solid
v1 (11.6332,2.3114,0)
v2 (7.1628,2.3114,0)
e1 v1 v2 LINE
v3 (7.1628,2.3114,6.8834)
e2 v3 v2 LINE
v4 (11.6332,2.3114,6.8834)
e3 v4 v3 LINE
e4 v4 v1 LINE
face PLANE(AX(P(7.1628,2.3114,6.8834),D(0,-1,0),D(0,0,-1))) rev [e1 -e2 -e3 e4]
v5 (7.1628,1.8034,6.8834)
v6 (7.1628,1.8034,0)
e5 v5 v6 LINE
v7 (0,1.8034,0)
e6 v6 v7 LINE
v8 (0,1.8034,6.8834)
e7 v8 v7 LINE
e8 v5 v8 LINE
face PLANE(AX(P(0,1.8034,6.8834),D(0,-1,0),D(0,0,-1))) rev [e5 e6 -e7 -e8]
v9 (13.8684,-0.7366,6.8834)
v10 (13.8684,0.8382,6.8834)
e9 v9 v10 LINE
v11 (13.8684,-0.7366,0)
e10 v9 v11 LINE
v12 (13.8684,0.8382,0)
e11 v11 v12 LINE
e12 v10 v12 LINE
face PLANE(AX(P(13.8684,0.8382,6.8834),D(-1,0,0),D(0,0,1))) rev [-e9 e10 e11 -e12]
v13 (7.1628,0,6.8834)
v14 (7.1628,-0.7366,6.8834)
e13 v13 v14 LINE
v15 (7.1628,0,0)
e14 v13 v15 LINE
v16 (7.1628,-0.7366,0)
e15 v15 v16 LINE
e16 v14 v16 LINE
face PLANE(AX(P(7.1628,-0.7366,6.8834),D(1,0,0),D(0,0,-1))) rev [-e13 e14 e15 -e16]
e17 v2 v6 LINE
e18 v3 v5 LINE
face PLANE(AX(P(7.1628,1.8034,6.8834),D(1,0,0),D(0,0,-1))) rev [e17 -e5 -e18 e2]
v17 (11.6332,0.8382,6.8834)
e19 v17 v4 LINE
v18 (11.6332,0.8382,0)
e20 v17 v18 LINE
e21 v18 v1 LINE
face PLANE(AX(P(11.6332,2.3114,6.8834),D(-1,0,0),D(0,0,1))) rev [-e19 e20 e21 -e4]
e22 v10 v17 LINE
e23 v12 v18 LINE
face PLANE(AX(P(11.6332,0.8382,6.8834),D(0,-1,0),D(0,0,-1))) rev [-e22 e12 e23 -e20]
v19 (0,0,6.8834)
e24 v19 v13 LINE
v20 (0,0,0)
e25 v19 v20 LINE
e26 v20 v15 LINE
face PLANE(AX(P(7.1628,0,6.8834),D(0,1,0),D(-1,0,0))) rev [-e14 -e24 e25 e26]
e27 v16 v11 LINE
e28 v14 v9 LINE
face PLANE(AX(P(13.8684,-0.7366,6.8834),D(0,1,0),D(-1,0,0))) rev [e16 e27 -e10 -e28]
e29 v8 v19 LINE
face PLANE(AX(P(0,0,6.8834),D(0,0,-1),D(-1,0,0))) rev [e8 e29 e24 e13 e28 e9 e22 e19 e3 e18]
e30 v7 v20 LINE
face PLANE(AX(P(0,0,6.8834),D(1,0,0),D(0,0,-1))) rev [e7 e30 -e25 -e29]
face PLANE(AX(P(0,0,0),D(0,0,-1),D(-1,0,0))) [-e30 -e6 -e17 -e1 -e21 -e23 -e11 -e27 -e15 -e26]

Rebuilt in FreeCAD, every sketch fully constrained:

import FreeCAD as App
import Part
import Sketcher

V = App.Vector
Q = App.Units.Quantity

doc = App.newDocument("Part")
body = doc.addObject("PartDesign::Body", "Body")

# Sketch on XY plane
sketch1 = body.newObject("Sketcher::SketchObject", "Sketch")
sketch1.AttachmentSupport = (doc.getObject("XY_Plane"), [""])
sketch1.MapMode = "FlatFace"
sketch1.addGeometry([
    Part.LineSegment(V(0, 1.8, 0), V(0, 0, 0)),  # 0
    Part.LineSegment(V(0, 0, 0), V(7.2, 0, 0)),  # 1
    Part.LineSegment(V(7.2, 0, 0), V(7.2, -0.7, 0)),  # 2
    Part.LineSegment(V(7.2, -0.7, 0), V(13.9, -0.7, 0)),  # 3
    Part.LineSegment(V(13.9, -0.7, 0), V(13.9, 0.8, 0)),  # 4
    Part.LineSegment(V(13.9, 0.8, 0), V(11.6, 0.8, 0)),  # 5
    Part.LineSegment(V(11.6, 0.8, 0), V(11.6, 2.3, 0)),  # 6
    Part.LineSegment(V(11.6, 2.3, 0), V(7.2, 2.3, 0)),  # 7
    Part.LineSegment(V(7.2, 2.3, 0), V(7.2, 1.8, 0)),  # 8
    Part.LineSegment(V(7.2, 1.8, 0), V(0, 1.8, 0)),  # 9
], False)
sketch1.addConstraint([
    Sketcher.Constraint("Coincident", 0, 2, 1, 1),
    Sketcher.Constraint("Coincident", 1, 2, 2, 1),
    Sketcher.Constraint("Coincident", 2, 2, 3, 1),
    Sketcher.Constraint("Coincident", 3, 2, 4, 1),
    Sketcher.Constraint("Coincident", 4, 2, 5, 1),
    Sketcher.Constraint("Coincident", 5, 2, 6, 1),
    Sketcher.Constraint("Coincident", 6, 2, 7, 1),
    Sketcher.Constraint("Coincident", 7, 2, 8, 1),
    Sketcher.Constraint("Coincident", 8, 2, 9, 1),
    Sketcher.Constraint("Coincident", 9, 2, 0, 1),
    Sketcher.Constraint("Vertical", 0),
    Sketcher.Constraint("Horizontal", 1),
    Sketcher.Constraint("Vertical", 2),
    Sketcher.Constraint("Horizontal", 3),
    Sketcher.Constraint("Vertical", 4),
    Sketcher.Constraint("Horizontal", 5),
    Sketcher.Constraint("Vertical", 6),
    Sketcher.Constraint("Horizontal", 7),
    Sketcher.Constraint("Vertical", 8),
    Sketcher.Constraint("Horizontal", 9),
    Sketcher.Constraint("Coincident", 0, 2, -1, 1),
    Sketcher.Constraint("Vertical", 2, 2, 7, 2),
    Sketcher.Constraint("DistanceY", 8, 2, 8, 1, Q("0.02 in")),
    Sketcher.Constraint("DistanceY", 2, 2, 8, 2, Q("0.1 in")),
    Sketcher.Constraint("DistanceX", 1, 1, 1, 2, Q("0.282 in")),
    Sketcher.Constraint("DistanceX", 3, 1, 3, 2, Q("0.264 in")),
    Sketcher.Constraint("DistanceX", 5, 2, 5, 1, Q("0.088 in")),
    Sketcher.Constraint("DistanceY", 0, 2, 0, 1, Q("0.071 in")),
    Sketcher.Constraint("DistanceY", 4, 1, 4, 2, Q("0.062 in")),
])
pad1 = body.newObject("PartDesign::Pad", "Pad")
pad1.Profile = sketch1
pad1.Length = Q("0.271 in")

doc.recompute()
